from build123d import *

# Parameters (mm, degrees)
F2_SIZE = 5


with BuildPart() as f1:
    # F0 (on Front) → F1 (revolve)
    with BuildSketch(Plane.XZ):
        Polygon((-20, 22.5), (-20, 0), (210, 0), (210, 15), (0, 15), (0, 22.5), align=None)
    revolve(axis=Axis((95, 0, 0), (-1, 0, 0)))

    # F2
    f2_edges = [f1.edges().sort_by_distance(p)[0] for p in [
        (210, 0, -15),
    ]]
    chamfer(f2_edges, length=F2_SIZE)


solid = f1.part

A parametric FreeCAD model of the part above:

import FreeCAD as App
import Part
import Sketcher


def edges_at(feature, points):
    """Names of the edges that pass closest to the given points."""
    edges = feature.Shape.Edges
    near = lambda p: min(range(len(edges)), key=lambda i: edges[i].distToShape(Part.Vertex(*p))[0])
    return sorted({f"Edge{near(p) + 1}" for p in points})

doc = App.newDocument("Part")
body = doc.addObject("PartDesign::Body", "Body")

# Sketch on XZ plane
sketch1 = body.newObject("Sketcher::SketchObject", "Sketch")
sketch1.AttachmentSupport = (doc.getObject("XZ_Plane"), [""])
sketch1.MapMode = "FlatFace"
sketch1.addGeometry([
    Part.LineSegment(App.Vector(-20, 22, 0), App.Vector(-20, 0, 0)),  # 0
    Part.LineSegment(App.Vector(-20, 0, 0), App.Vector(210, 0, 0)),  # 1
    Part.LineSegment(App.Vector(210, 0, 0), App.Vector(210, 15, 0)),  # 2
    Part.LineSegment(App.Vector(210, 15, 0), App.Vector(0, 15, 0)),  # 3
    Part.LineSegment(App.Vector(0, 15, 0), App.Vector(0, 22, 0)),  # 4
    Part.LineSegment(App.Vector(0, 22, 0), App.Vector(-20, 22, 0)),  # 5
], False)
sketch1.addConstraint([
    Sketcher.Constraint("Coincident", 0, 2, 1, 1),
    Sketcher.Constraint("Coincident", 1, 2, 2, 1),
    Sketcher.Constraint("Coincident", 2, 2, 3, 1),
    Sketcher.Constraint("Coincident", 3, 2, 4, 1),
    Sketcher.Constraint("Coincident", 4, 2, 5, 1),
    Sketcher.Constraint("Coincident", 5, 2, 0, 1),
    Sketcher.Constraint("Vertical", 0),
    Sketcher.Constraint("Horizontal", 1),
    Sketcher.Constraint("Vertical", 2),
    Sketcher.Constraint("Horizontal", 3),
    Sketcher.Constraint("Vertical", 4),
    Sketcher.Constraint("Horizontal", 5),
    Sketcher.Constraint("PointOnObject", 0, 2, -1),
    Sketcher.Constraint("PointOnObject", 3, 2, -2),
    Sketcher.Constraint("DistanceX", 1, 1, 1, 2, 230.0),
    Sketcher.Constraint("DistanceX", 3, 2, 3, 1, 210.0),
    Sketcher.Constraint("DistanceY", 2, 1, 2, 2, 15.0),
    Sketcher.Constraint("DistanceY", 0, 2, 0, 1, 22.5),
])
revolution = body.newObject("PartDesign::Revolution", "Revolution")
revolution.Profile = sketch1
revolution.ReferenceAxis = (sketch1, ["H_Axis"])
revolution.Angle = 360
doc.recompute()

chamfer = body.newObject("PartDesign::Chamfer", "Chamfer")
chamfer.Base = (revolution, edges_at(revolution, [(210, 0, -15)]))
chamfer.Size = 5

doc.recompute()
